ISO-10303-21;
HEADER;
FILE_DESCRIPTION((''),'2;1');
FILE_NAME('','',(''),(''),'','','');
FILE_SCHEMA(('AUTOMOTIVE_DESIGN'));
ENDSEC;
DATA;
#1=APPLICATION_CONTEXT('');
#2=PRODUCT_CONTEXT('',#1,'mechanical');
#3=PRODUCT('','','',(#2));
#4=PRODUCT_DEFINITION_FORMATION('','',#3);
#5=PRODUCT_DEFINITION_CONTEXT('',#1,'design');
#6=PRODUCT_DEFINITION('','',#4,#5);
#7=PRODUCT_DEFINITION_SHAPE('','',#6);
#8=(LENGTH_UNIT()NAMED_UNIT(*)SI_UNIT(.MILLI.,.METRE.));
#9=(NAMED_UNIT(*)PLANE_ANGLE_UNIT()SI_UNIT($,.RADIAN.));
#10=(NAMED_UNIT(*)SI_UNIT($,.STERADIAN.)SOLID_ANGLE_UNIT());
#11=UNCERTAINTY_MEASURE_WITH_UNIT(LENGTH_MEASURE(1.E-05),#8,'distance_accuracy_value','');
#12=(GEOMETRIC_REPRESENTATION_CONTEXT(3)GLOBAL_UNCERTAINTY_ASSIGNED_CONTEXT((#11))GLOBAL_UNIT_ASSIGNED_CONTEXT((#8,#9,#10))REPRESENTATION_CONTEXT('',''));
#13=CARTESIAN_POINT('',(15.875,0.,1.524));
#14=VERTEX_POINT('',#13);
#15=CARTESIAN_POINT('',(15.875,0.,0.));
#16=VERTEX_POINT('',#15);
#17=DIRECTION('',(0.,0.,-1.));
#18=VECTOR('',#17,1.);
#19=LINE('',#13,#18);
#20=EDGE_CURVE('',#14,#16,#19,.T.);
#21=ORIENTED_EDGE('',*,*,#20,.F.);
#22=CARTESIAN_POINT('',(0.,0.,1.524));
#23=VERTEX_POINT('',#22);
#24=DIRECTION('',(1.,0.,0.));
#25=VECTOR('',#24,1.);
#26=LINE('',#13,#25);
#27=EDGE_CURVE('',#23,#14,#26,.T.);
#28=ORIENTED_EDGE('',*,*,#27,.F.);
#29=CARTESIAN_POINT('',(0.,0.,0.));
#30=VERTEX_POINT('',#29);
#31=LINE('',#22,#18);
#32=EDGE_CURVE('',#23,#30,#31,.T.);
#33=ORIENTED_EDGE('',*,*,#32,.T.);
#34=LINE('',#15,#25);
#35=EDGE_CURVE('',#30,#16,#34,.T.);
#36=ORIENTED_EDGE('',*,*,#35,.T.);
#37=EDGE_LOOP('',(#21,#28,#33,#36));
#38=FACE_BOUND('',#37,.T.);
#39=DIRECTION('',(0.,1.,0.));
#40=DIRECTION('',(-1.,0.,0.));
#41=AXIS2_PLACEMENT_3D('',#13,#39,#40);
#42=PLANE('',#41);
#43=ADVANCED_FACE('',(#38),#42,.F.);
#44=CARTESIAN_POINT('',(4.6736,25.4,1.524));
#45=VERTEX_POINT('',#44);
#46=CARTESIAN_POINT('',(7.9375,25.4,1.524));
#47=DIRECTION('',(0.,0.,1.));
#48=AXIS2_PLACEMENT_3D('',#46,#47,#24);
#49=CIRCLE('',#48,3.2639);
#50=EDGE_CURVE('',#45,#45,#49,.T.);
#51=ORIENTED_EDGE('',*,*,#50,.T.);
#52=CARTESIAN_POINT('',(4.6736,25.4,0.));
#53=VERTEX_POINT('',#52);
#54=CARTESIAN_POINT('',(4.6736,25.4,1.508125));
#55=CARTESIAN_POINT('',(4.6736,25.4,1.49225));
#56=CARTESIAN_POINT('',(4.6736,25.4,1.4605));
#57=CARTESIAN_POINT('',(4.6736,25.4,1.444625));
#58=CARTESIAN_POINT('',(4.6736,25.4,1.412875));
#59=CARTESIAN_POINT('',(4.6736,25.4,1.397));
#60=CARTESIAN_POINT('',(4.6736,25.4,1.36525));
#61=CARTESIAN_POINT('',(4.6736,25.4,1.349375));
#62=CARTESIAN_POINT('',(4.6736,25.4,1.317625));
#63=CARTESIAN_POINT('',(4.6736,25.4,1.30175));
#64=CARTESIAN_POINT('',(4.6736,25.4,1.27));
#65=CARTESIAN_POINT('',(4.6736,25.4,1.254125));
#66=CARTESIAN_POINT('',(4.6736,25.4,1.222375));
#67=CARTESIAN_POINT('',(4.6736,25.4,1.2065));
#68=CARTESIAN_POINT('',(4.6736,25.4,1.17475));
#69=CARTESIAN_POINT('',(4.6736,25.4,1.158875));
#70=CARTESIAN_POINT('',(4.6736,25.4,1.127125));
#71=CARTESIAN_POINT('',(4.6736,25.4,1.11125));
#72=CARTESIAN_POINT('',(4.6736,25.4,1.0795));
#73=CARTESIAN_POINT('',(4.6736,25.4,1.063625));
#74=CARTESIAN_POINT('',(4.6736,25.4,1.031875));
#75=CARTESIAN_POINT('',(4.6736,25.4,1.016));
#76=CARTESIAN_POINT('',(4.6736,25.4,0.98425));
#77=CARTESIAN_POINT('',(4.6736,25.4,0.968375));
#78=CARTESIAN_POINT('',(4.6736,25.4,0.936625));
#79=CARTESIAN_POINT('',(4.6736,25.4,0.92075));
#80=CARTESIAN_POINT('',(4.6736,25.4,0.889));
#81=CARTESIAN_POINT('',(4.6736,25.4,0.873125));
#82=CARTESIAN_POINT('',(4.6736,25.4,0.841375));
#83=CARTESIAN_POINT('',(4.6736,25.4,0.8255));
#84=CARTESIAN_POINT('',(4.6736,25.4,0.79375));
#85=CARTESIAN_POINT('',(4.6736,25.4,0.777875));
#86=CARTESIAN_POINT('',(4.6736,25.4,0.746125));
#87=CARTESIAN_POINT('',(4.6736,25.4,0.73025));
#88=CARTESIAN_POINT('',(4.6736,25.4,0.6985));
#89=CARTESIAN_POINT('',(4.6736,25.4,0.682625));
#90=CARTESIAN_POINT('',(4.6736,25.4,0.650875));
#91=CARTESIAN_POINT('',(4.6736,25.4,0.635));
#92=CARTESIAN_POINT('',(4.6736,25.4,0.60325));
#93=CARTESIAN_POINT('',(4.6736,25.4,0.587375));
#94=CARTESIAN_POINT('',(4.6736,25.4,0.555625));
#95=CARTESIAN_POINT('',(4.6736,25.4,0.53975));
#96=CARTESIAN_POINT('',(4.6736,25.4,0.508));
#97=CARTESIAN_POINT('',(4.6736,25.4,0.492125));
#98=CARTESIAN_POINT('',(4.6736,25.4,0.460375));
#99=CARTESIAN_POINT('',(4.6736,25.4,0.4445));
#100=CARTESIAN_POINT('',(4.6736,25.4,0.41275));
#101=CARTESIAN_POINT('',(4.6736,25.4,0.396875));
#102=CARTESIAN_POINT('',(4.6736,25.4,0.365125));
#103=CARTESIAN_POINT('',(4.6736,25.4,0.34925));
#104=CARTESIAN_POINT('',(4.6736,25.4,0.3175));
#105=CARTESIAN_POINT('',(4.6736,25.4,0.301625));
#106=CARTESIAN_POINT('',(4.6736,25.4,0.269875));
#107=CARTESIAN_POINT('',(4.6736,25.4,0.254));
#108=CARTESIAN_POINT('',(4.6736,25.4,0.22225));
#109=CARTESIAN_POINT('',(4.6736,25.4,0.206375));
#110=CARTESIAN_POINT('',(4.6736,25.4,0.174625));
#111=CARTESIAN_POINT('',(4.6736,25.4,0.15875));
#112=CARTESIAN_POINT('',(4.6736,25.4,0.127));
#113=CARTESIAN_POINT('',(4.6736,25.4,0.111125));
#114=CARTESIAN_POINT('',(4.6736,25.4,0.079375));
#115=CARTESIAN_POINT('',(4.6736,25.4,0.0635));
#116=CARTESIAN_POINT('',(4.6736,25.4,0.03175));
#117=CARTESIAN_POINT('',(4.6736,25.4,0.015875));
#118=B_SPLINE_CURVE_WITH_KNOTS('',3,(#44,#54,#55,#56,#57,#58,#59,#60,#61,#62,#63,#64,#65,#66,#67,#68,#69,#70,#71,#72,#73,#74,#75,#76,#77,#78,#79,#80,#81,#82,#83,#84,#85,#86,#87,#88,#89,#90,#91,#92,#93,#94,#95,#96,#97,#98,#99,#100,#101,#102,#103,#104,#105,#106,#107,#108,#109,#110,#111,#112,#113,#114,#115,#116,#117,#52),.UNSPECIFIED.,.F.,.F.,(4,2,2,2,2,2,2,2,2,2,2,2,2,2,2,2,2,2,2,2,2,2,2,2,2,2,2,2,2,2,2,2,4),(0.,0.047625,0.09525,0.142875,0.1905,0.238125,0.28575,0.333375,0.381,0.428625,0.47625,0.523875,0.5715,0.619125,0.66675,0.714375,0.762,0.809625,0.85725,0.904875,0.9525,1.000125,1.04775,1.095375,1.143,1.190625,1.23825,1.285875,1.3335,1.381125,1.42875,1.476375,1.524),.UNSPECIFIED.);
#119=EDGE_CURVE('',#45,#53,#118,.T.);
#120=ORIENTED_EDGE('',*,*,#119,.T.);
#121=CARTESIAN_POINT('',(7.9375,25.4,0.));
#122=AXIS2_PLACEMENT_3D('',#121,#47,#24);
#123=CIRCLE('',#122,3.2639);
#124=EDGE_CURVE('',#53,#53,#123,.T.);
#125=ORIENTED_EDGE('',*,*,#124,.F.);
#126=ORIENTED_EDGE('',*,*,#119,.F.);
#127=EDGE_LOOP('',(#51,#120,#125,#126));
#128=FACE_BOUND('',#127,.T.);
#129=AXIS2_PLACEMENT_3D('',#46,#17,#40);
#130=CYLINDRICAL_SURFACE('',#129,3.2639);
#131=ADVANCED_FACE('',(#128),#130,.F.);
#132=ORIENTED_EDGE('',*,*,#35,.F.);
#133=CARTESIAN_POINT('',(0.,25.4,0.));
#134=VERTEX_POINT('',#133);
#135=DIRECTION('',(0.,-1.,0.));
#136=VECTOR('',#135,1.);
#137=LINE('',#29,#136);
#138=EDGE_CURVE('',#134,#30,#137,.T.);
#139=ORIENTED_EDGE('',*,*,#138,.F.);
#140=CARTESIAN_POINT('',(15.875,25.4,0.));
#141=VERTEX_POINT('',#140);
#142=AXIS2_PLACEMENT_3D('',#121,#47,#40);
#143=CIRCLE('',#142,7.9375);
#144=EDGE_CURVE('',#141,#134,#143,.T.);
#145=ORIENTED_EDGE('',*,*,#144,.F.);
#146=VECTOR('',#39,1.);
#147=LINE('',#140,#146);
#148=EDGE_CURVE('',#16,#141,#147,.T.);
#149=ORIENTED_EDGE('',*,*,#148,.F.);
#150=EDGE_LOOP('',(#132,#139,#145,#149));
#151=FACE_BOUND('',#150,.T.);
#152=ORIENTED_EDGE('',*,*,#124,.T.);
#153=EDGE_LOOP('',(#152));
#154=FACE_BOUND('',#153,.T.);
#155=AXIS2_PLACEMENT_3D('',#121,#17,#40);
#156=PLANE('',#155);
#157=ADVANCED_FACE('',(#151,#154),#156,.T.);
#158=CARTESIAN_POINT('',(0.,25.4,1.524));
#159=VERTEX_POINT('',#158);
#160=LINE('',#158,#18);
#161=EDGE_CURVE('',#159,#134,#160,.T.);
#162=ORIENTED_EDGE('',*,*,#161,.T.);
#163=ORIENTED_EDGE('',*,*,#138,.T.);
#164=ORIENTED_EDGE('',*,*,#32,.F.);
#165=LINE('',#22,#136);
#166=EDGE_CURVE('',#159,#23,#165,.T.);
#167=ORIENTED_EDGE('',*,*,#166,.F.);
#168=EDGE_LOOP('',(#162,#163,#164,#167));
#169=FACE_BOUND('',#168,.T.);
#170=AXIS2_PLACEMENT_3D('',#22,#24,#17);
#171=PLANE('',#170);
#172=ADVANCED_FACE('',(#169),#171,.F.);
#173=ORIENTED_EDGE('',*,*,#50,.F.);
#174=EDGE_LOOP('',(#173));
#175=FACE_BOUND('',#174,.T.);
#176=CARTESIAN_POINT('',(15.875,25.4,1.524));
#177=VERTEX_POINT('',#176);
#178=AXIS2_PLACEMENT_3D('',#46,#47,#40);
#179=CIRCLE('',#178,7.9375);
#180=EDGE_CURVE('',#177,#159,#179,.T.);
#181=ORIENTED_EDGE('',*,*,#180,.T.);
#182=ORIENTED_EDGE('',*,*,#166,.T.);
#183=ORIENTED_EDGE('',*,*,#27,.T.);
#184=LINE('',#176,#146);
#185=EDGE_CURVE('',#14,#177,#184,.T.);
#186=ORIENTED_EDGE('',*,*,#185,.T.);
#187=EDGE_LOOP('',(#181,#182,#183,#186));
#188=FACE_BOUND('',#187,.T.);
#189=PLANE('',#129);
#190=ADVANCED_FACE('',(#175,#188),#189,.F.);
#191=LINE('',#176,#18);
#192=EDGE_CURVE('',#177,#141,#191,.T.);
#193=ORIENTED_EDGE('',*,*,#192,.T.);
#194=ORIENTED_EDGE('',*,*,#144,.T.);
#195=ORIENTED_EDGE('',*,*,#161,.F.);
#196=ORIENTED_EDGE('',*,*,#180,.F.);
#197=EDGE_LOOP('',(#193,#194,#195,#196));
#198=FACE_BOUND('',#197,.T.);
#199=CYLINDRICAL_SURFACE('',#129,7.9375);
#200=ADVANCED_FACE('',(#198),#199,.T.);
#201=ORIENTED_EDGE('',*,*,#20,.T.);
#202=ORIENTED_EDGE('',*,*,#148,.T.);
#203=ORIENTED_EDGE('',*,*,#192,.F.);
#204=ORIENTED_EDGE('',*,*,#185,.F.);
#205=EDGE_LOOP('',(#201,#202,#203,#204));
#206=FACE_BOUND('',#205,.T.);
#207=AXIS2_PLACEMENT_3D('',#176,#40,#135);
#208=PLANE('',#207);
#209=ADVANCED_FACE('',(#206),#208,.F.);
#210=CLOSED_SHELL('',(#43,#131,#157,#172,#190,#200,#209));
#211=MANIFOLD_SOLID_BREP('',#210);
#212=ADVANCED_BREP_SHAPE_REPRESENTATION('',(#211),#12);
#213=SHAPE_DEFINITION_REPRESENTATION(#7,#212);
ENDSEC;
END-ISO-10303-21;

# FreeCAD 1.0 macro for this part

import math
import FreeCAD as App
import Part
import Sketcher
Q = App.Units.Quantity

doc = App.newDocument("Part")
body = doc.addObject("PartDesign::Body", "Body")

sketch1 = doc.addObject("Sketcher::SketchObject", "Sketch")
body.addObject(sketch1)
sketch1.AttachmentSupport = (doc.XY_Plane, [""])
sketch1.MapMode = "FlatFace"
sketch1.addGeometry(Part.LineSegment(App.Vector(0, 25.4, 0), App.Vector(0, 0, 0)), False)
sketch1.addGeometry(Part.LineSegment(App.Vector(0, 0, 0), App.Vector(15.875, 0, 0)), False)
sketch1.addGeometry(Part.LineSegment(App.Vector(15.875, 0, 0), App.Vector(15.875, 25.4, 0)), False)
sketch1.addGeometry(Part.ArcOfCircle(Part.Circle(App.Vector(7.9375, 25.4, 0), App.Vector(0, 0, 1), 7.9375), math.radians(0), math.radians(180)), False)
sketch1.addGeometry(Part.Circle(App.Vector(7.9375, 25.4, 0), App.Vector(0, 0, 1), 3.2639), False)
sketch1.addConstraint(Sketcher.Constraint("Coincident", 0, 2, 1, 1))
sketch1.addConstraint(Sketcher.Constraint("Coincident", 1, 2, 2, 1))
sketch1.addConstraint(Sketcher.Constraint("Tangent", 2, 2, 3, 1))
sketch1.addConstraint(Sketcher.Constraint("Tangent", 3, 2, 0, 1))
sketch1.addConstraint(Sketcher.Constraint("Vertical", 0))
sketch1.addConstraint(Sketcher.Constraint("Horizontal", 1))
sketch1.addConstraint(Sketcher.Constraint("Vertical", 2))
sketch1.addConstraint(Sketcher.Constraint("Coincident", 0, 2, -1, 1))
sketch1.addConstraint(Sketcher.Constraint("Coincident", 4, 3, 3, 3))
sketch1.addConstraint(Sketcher.Constraint("DistanceY", 0, 2, 0, 1, Q("1 in")))
sketch1.addConstraint(Sketcher.Constraint("Diameter", 4, Q("0.257 in")))
sketch1.addConstraint(Sketcher.Constraint("Radius", 3, Q("0.3125 in")))
pad1 = doc.addObject("PartDesign::Pad", "Pad")
body.addObject(pad1)
pad1.Profile = sketch1
pad1.Length = Q("0.06 in")

doc.recompute()
